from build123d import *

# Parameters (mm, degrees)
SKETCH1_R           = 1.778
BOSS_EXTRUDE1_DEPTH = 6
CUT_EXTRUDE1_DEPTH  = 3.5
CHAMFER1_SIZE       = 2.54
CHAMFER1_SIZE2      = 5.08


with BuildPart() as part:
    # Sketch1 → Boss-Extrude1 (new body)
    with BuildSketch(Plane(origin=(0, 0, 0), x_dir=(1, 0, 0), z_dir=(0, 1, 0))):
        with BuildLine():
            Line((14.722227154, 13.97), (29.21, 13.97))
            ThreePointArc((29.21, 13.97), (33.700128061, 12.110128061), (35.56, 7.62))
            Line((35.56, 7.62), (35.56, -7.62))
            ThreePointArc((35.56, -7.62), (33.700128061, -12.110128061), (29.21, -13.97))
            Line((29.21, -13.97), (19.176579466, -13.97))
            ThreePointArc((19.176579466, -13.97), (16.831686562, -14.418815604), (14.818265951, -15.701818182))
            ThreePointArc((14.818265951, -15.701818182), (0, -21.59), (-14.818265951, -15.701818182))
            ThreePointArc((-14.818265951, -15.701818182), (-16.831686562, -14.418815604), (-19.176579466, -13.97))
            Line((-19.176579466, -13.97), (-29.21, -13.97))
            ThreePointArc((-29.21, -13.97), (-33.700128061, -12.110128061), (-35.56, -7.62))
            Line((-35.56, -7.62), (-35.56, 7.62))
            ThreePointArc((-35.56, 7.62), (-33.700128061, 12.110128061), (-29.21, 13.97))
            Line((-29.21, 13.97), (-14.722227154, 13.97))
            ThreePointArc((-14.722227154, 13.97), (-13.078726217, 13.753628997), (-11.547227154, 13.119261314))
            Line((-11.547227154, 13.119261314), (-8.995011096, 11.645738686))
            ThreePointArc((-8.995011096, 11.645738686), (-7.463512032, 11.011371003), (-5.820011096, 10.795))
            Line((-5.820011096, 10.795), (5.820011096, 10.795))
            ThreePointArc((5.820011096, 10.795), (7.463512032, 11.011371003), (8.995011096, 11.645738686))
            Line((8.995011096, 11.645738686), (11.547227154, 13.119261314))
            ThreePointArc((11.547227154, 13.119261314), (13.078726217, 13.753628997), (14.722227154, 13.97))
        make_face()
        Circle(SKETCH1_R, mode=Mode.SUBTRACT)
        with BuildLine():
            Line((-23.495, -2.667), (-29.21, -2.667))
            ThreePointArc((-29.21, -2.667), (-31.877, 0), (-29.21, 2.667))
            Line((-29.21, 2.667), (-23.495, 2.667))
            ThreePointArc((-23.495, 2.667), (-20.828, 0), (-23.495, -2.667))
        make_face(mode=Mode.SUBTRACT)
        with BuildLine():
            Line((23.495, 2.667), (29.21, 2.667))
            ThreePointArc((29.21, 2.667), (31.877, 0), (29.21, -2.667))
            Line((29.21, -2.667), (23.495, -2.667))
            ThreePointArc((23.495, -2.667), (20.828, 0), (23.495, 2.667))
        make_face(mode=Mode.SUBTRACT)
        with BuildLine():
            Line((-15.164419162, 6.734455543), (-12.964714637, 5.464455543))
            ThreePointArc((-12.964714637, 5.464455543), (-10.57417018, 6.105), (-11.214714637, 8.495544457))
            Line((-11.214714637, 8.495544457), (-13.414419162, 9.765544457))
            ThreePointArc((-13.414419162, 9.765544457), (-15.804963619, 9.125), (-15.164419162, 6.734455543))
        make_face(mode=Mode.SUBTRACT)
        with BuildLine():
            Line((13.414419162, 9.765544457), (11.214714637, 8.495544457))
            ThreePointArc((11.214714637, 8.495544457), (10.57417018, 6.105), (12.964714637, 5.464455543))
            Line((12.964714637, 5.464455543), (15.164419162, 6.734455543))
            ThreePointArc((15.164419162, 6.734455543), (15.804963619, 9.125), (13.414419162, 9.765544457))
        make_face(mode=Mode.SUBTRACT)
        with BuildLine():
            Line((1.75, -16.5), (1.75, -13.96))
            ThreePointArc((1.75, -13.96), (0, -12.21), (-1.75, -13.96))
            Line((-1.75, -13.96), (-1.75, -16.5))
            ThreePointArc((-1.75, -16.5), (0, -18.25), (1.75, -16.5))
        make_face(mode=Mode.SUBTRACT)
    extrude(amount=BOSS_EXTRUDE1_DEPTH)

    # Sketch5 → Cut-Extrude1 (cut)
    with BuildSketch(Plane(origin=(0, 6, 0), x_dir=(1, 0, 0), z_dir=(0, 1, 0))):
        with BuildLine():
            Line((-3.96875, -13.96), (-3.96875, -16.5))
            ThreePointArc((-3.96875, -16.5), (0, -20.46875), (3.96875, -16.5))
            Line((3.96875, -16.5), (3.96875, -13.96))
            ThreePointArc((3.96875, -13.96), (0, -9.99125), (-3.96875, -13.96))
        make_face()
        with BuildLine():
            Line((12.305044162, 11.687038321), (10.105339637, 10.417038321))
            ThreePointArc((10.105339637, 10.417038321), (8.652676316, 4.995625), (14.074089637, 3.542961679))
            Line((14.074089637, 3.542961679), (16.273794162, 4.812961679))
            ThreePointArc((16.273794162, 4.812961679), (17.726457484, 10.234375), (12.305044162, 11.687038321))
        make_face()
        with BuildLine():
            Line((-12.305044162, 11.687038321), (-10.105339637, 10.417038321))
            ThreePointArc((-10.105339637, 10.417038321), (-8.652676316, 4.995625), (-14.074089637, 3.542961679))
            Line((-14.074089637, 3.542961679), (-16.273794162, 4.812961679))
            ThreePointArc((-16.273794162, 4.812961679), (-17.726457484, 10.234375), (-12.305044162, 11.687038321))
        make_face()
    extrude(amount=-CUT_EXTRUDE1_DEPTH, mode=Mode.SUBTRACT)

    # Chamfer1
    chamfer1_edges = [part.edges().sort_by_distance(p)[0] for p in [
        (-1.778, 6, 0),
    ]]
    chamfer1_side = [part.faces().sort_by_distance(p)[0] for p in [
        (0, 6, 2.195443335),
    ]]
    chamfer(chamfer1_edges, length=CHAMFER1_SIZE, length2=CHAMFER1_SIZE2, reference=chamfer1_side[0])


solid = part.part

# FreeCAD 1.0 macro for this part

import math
import FreeCAD as App
import Part
import Sketcher
from FreeCAD import Vector
Q = App.Units.Quantity


def edges_at(feature, points):
    """Names of the edges that pass closest to the given points."""
    edges = feature.Shape.Edges
    near = lambda p: min(range(len(edges)), key=lambda i: edges[i].distToShape(Part.Vertex(*p))[0])
    return sorted({f"Edge{near(p) + 1}" for p in points})

doc = App.newDocument("Part")
body = doc.addObject("PartDesign::Body", "Body")

# Sketch on XZ plane
sketch1 = doc.addObject("Sketcher::SketchObject", "Sketch")
body.addObject(sketch1)
sketch1.AttachmentSupport = (doc.XZ_Plane, [""])
sketch1.MapMode = "FlatFace"
sketch1.addGeometry(Part.LineSegment(Vector(29.21, -13.97, 0), Vector(14.722227, -13.97, 0)), False)
sketch1.addGeometry(Part.ArcOfCircle(Part.Circle(Vector(14.722227, -7.62, 0), Vector(0, 0, 1), 6.35), math.radians(-120), math.radians(-90)), False)
sketch1.addGeometry(Part.LineSegment(Vector(11.547227, -13.119261, 0), Vector(8.995011, -11.645739, 0)), False)
sketch1.addGeometry(Part.ArcOfCircle(Part.Circle(Vector(5.820011, -17.145, 0), Vector(0, 0, 1), 6.35), math.radians(60), math.radians(90)), False)
sketch1.addGeometry(Part.LineSegment(Vector(5.820011, -10.795, 0), Vector(-5.820011, -10.795, 0)), False)
sketch1.addGeometry(Part.ArcOfCircle(Part.Circle(Vector(-5.820011, -17.145, 0), Vector(0, 0, 1), 6.35), math.radians(90), math.radians(120)), False)
sketch1.addGeometry(Part.LineSegment(Vector(-8.995011, -11.645739, 0), Vector(-11.547227, -13.119261, 0)), False)
sketch1.addGeometry(Part.ArcOfCircle(Part.Circle(Vector(-14.722227, -7.62, 0), Vector(0, 0, 1), 6.35), math.radians(-90), math.radians(-60)), False)
sketch1.addGeometry(Part.LineSegment(Vector(-14.722227, -13.97, 0), Vector(-29.21, -13.97, 0)), False)
sketch1.addGeometry(Part.ArcOfCircle(Part.Circle(Vector(-29.21, -7.62, 0), Vector(0, 0, 1), 6.35), math.radians(180), math.radians(270)), False)
sketch1.addGeometry(Part.LineSegment(Vector(-35.56, -7.62, 0), Vector(-35.56, 7.62, 0)), False)
sketch1.addGeometry(Part.ArcOfCircle(Part.Circle(Vector(-29.21, 7.62, 0), Vector(0, 0, 1), 6.35), math.radians(90), math.radians(180)), False)
sketch1.addGeometry(Part.LineSegment(Vector(-29.21, 13.97, 0), Vector(-19.176579, 13.97, 0)), False)
sketch1.addGeometry(Part.ArcOfCircle(Part.Circle(Vector(-19.176579, 20.32, 0), Vector(0, 0, 1), 6.35), math.radians(-90), math.radians(-46.658242)), False)
sketch1.addGeometry(Part.ArcOfCircle(Part.Circle(Vector(0, 0, 0), Vector(0, 0, 1), 21.59), math.radians(46.658242), math.radians(133.341758)), False)
sketch1.addGeometry(Part.ArcOfCircle(Part.Circle(Vector(19.176579, 20.32, 0), Vector(0, 0, 1), 6.35), math.radians(-133.341758), math.radians(-90)), False)
sketch1.addGeometry(Part.LineSegment(Vector(19.176579, 13.97, 0), Vector(29.21, 13.97, 0)), False)
sketch1.addGeometry(Part.ArcOfCircle(Part.Circle(Vector(29.21, 7.62, 0), Vector(0, 0, 1), 6.35), math.radians(0), math.radians(90)), False)
sketch1.addGeometry(Part.LineSegment(Vector(35.56, 7.62, 0), Vector(35.56, -7.62, 0)), False)
sketch1.addGeometry(Part.ArcOfCircle(Part.Circle(Vector(29.21, -7.62, 0), Vector(0, 0, 1), 6.35), math.radians(-90), math.radians(0)), False)
sketch1.addGeometry(Part.ArcOfCircle(Part.Circle(Vector(0, 16.5, 0), Vector(0, 0, 1), 1.75), math.radians(0), math.radians(180)), False)
sketch1.addGeometry(Part.LineSegment(Vector(-1.75, 16.5, 0), Vector(-1.75, 13.96, 0)), False)
sketch1.addGeometry(Part.ArcOfCircle(Part.Circle(Vector(0, 13.96, 0), Vector(0, 0, 1), 1.75), math.radians(180), math.radians(360)), False)
sketch1.addGeometry(Part.LineSegment(Vector(1.75, 13.96, 0), Vector(1.75, 16.5, 0)), False)
sketch1.addGeometry(Part.LineSegment(Vector(23.495, -2.667, 0), Vector(29.21, -2.667, 0)), False)
sketch1.addGeometry(Part.ArcOfCircle(Part.Circle(Vector(29.21, 0, 0), Vector(0, 0, 1), 2.667), math.radians(-90), math.radians(90)), False)
sketch1.addGeometry(Part.LineSegment(Vector(29.21, 2.667, 0), Vector(23.495, 2.667, 0)), False)
sketch1.addGeometry(Part.ArcOfCircle(Part.Circle(Vector(23.495, 0, 0), Vector(0, 0, 1), 2.667), math.radians(90), math.radians(270)), False)
sketch1.addGeometry(Part.ArcOfCircle(Part.Circle(Vector(14.289419, -8.25, 0), Vector(0, 0, 1), 1.75), math.radians(-120), math.radians(60)), False)
sketch1.addGeometry(Part.LineSegment(Vector(15.164419, -6.734456, 0), Vector(12.964715, -5.464456, 0)), False)
sketch1.addGeometry(Part.ArcOfCircle(Part.Circle(Vector(12.089715, -6.98, 0), Vector(0, 0, 1), 1.75), math.radians(60), math.radians(240)), False)
sketch1.addGeometry(Part.LineSegment(Vector(11.214715, -8.495544, 0), Vector(13.414419, -9.765544, 0)), False)
sketch1.addGeometry(Part.Circle(Vector(0, 0, 0), Vector(0, 0, 1), 1.778), False)
sketch1.addGeometry(Part.LineSegment(Vector(-23.495, 2.667, 0), Vector(-29.21, 2.667, 0)), False)
sketch1.addGeometry(Part.ArcOfCircle(Part.Circle(Vector(-29.21, 0, 0), Vector(0, 0, 1), 2.667), math.radians(90), math.radians(270)), False)
sketch1.addGeometry(Part.LineSegment(Vector(-29.21, -2.667, 0), Vector(-23.495, -2.667, 0)), False)
sketch1.addGeometry(Part.ArcOfCircle(Part.Circle(Vector(-23.495, 0, 0), Vector(0, 0, 1), 2.667), math.radians(-90), math.radians(90)), False)
sketch1.addGeometry(Part.ArcOfCircle(Part.Circle(Vector(-14.289419, -8.25, 0), Vector(0, 0, 1), 1.75), math.radians(120), math.radians(300)), False)
sketch1.addGeometry(Part.LineSegment(Vector(-13.414419, -9.765544, 0), Vector(-11.214715, -8.495544, 0)), False)
sketch1.addGeometry(Part.ArcOfCircle(Part.Circle(Vector(-12.089715, -6.98, 0), Vector(0, 0, 1), 1.75), math.radians(-60), math.radians(120)), False)
sketch1.addGeometry(Part.LineSegment(Vector(-12.964715, -5.464456, 0), Vector(-15.164419, -6.734456, 0)), False)
sketch1.addConstraint(Sketcher.Constraint("Tangent", 0, 2, 1, 2))
sketch1.addConstraint(Sketcher.Constraint("Tangent", 1, 1, 2, 1))
sketch1.addConstraint(Sketcher.Constraint("Tangent", 2, 2, 3, 1))
sketch1.addConstraint(Sketcher.Constraint("Tangent", 3, 2, 4, 1))
sketch1.addConstraint(Sketcher.Constraint("Tangent", 4, 2, 5, 1))
sketch1.addConstraint(Sketcher.Constraint("Tangent", 5, 2, 6, 1))
sketch1.addConstraint(Sketcher.Constraint("Tangent", 6, 2, 7, 2))
sketch1.addConstraint(Sketcher.Constraint("Tangent", 7, 1, 8, 1))
sketch1.addConstraint(Sketcher.Constraint("Tangent", 8, 2, 9, 2))
sketch1.addConstraint(Sketcher.Constraint("Tangent", 9, 1, 10, 1))
sketch1.addConstraint(Sketcher.Constraint("Tangent", 10, 2, 11, 2))
sketch1.addConstraint(Sketcher.Constraint("Tangent", 11, 1, 12, 1))
sketch1.addConstraint(Sketcher.Constraint("Tangent", 12, 2, 13, 1))
sketch1.addConstraint(Sketcher.Constraint("Tangent", 13, 2, 14, 2))
sketch1.addConstraint(Sketcher.Constraint("Tangent", 14, 1, 15, 1))
sketch1.addConstraint(Sketcher.Constraint("Tangent", 15, 2, 16, 1))
sketch1.addConstraint(Sketcher.Constraint("Tangent", 16, 2, 17, 2))
sketch1.addConstraint(Sketcher.Constraint("Tangent", 17, 1, 18, 1))
sketch1.addConstraint(Sketcher.Constraint("Tangent", 18, 2, 19, 2))
sketch1.addConstraint(Sketcher.Constraint("Tangent", 19, 1, 0, 1))
sketch1.addConstraint(Sketcher.Constraint("Tangent", 20, 2, 21, 1))
sketch1.addConstraint(Sketcher.Constraint("Tangent", 21, 2, 22, 1))
sketch1.addConstraint(Sketcher.Constraint("Tangent", 22, 2, 23, 1))
sketch1.addConstraint(Sketcher.Constraint("Tangent", 23, 2, 20, 1))
sketch1.addConstraint(Sketcher.Constraint("Tangent", 24, 2, 25, 1))
sketch1.addConstraint(Sketcher.Constraint("Tangent", 25, 2, 26, 1))
sketch1.addConstraint(Sketcher.Constraint("Tangent", 26, 2, 27, 1))
sketch1.addConstraint(Sketcher.Constraint("Tangent", 27, 2, 24, 1))
sketch1.addConstraint(Sketcher.Constraint("Tangent", 28, 2, 29, 1))
sketch1.addConstraint(Sketcher.Constraint("Tangent", 29, 2, 30, 1))
sketch1.addConstraint(Sketcher.Constraint("Tangent", 30, 2, 31, 1))
sketch1.addConstraint(Sketcher.Constraint("Tangent", 31, 2, 28, 1))
sketch1.addConstraint(Sketcher.Constraint("Tangent", 33, 2, 34, 1))
sketch1.addConstraint(Sketcher.Constraint("Tangent", 34, 2, 35, 1))
sketch1.addConstraint(Sketcher.Constraint("Tangent", 35, 2, 36, 1))
sketch1.addConstraint(Sketcher.Constraint("Tangent", 36, 2, 33, 1))
sketch1.addConstraint(Sketcher.Constraint("Tangent", 37, 2, 38, 1))
sketch1.addConstraint(Sketcher.Constraint("Tangent", 38, 2, 39, 1))
sketch1.addConstraint(Sketcher.Constraint("Tangent", 39, 2, 40, 1))
sketch1.addConstraint(Sketcher.Constraint("Tangent", 40, 2, 37, 1))
sketch1.addConstraint(Sketcher.Constraint("Horizontal", 0))
sketch1.addConstraint(Sketcher.Constraint("Horizontal", 4))
sketch1.addConstraint(Sketcher.Constraint("Horizontal", 8))
sketch1.addConstraint(Sketcher.Constraint("Vertical", 10))
sketch1.addConstraint(Sketcher.Constraint("Horizontal", 12))
sketch1.addConstraint(Sketcher.Constraint("Horizontal", 16))
sketch1.addConstraint(Sketcher.Constraint("Vertical", 18))
sketch1.addConstraint(Sketcher.Constraint("Vertical", 21))
sketch1.addConstraint(Sketcher.Constraint("Vertical", 23))
sketch1.addConstraint(Sketcher.Constraint("Horizontal", 24))
sketch1.addConstraint(Sketcher.Constraint("Horizontal", 26))
sketch1.addConstraint(Sketcher.Constraint("Horizontal", 33))
sketch1.addConstraint(Sketcher.Constraint("Horizontal", 35))
sketch1.addConstraint(Sketcher.Constraint("Coincident", 14, 3, -1, 1))
sketch1.addConstraint(Sketcher.Constraint("Coincident", 32, 3, -1, 1))
sketch1.addConstraint(Sketcher.Constraint("Equal", 1, 3))
sketch1.addConstraint(Sketcher.Constraint("Equal", 3, 5))
sketch1.addConstraint(Sketcher.Constraint("Equal", 5, 7))
sketch1.addConstraint(Sketcher.Constraint("Equal", 7, 9))
sketch1.addConstraint(Sketcher.Constraint("Equal", 9, 11))
sketch1.addConstraint(Sketcher.Constraint("Equal", 11, 13))
sketch1.addConstraint(Sketcher.Constraint("Equal", 13, 15))
sketch1.addConstraint(Sketcher.Constraint("Equal", 15, 17))
sketch1.addConstraint(Sketcher.Constraint("Equal", 17, 19))
sketch1.addConstraint(Sketcher.Constraint("Equal", 22, 28))
sketch1.addConstraint(Sketcher.Constraint("Equal", 28, 30))
sketch1.addConstraint(Sketcher.Constraint("Equal", 27, 34))
sketch1.addConstraint(Sketcher.Constraint("Equal", 30, 37))
sketch1.addConstraint(Sketcher.Constraint("Equal", 37, 39))
sketch1.addConstraint(Sketcher.Constraint("Symmetric", 9, 3, 17, 3, -1, 1))
sketch1.addConstraint(Sketcher.Constraint("Symmetric", 25, 3, 34, 3, -1, 1))
sketch1.addConstraint(Sketcher.Constraint("Symmetric", 1, 3, 7, 3, -2))
sketch1.addConstraint(Sketcher.Constraint("Symmetric", 27, 3, 36, 3, -2))
sketch1.addConstraint(Sketcher.Constraint("Symmetric", 28, 3, 37, 3, -2))
sketch1.addConstraint(Sketcher.Constraint("Symmetric", 30, 3, 39, 3, -2))
sketch1.addConstraint(Sketcher.Constraint("PointOnObject", 20, 3, -2))
sketch1.addConstraint(Sketcher.Constraint("Parallel", 2, 29))
sketch1.addConstraint(Sketcher.Constraint("Parallel", 6, 38))
sketch1.addConstraint(Sketcher.Constraint("Horizontal", 13, 3, 15, 3))
sketch1.addConstraint(Sketcher.Constraint("Vertical", 19, 3, 25, 3))
sketch1.addConstraint(Sketcher.Constraint("Diameter", 32, Q("0.14 in")))
sketch1.addConstraint(Sketcher.Constraint("Radius", 1, Q("0.25 in")))
sketch1.addConstraint(Sketcher.Constraint("Radius", 14, Q("0.85 in")))
sketch1.addConstraint(Sketcher.Constraint("DistanceY", 10, 1, 10, 2, Q("0.6 in")))
sketch1.addConstraint(Sketcher.Constraint("DistanceY", 21, 2, 21, 1, Q("0.1 in")))
sketch1.addConstraint(Sketcher.Constraint("Angle", 2, Q("150 deg")))
sketch1.addConstraint(Sketcher.Constraint("Radius", 25, Q("0.105 in")))
sketch1.addConstraint(Sketcher.Constraint("Distance", 29, Q("0.1 in")))
sketch1.addConstraint(Sketcher.Constraint("DistanceX", 9, 1, -1, 1, Q("1.4 in")))
sketch1.addConstraint(Sketcher.Constraint("DistanceX", 24, 1, 24, 2, Q("0.225 in")))
sketch1.addConstraint(Sketcher.Constraint("Radius", 20, 1.75))
sketch1.addConstraint(Sketcher.Constraint("DistanceY", 3, 3, -1, 1, Q("0.675 in")))
sketch1.addConstraint(Sketcher.Constraint("DistanceY", -1, 1, 20, 3, 16.5))
sketch1.addConstraint(Sketcher.Constraint("DistanceY", 28, 3, -1, 1, 8.25))
sketch1.addConstraint(Sketcher.Constraint("DistanceX", 0, 2, 0, 1, 14.487773))
sketch1.addConstraint(Sketcher.Constraint("DistanceX", -1, 1, 28, 3, 14.289419))
pad1 = doc.addObject("PartDesign::Pad", "Pad")
body.addObject(pad1)
pad1.Profile = sketch1
pad1.Length = 6
pad1.Reversed = True

# Sketch on XZ plane
sketch2 = doc.addObject("Sketcher::SketchObject", "Sketch001")
body.addObject(sketch2)
sketch2.AttachmentSupport = (doc.XZ_Plane, [""])
sketch2.MapMode = "FlatFace"
sketch2.AttachmentOffset = App.Placement(Vector(0, 0, -6), App.Rotation())
sketch2.addGeometry(Part.LineSegment(Vector(-3.96875, 13.96, 0), Vector(-3.96875, 16.5, 0)), False)
sketch2.addGeometry(Part.ArcOfCircle(Part.Circle(Vector(0, 16.5, 0), Vector(0, 0, 1), 3.96875), math.radians(0), math.radians(180)), False)
sketch2.addGeometry(Part.LineSegment(Vector(3.96875, 16.5, 0), Vector(3.96875, 13.96, 0)), False)
sketch2.addGeometry(Part.ArcOfCircle(Part.Circle(Vector(0, 13.96, 0), Vector(0, 0, 1), 3.96875), math.radians(180), math.radians(360)), False)
sketch2.addGeometry(Part.LineSegment(Vector(12.305044, -11.687038, 0), Vector(10.10534, -10.417038, 0)), False)
sketch2.addGeometry(Part.ArcOfCircle(Part.Circle(Vector(12.089715, -6.98, 0), Vector(0, 0, 1), 3.96875), math.radians(60), math.radians(240)), False)
sketch2.addGeometry(Part.LineSegment(Vector(14.07409, -3.542962, 0), Vector(16.273794, -4.812962, 0)), False)
sketch2.addGeometry(Part.ArcOfCircle(Part.Circle(Vector(14.289419, -8.25, 0), Vector(0, 0, 1), 3.96875), math.radians(-120), math.radians(60)), False)
sketch2.addGeometry(Part.LineSegment(Vector(-10.10534, -10.417038, 0), Vector(-12.305044, -11.687038, 0)), False)
sketch2.addGeometry(Part.ArcOfCircle(Part.Circle(Vector(-14.289419, -8.25, 0), Vector(0, 0, 1), 3.96875), math.radians(120), math.radians(300)), False)
sketch2.addGeometry(Part.LineSegment(Vector(-16.273794, -4.812962, 0), Vector(-14.07409, -3.542962, 0)), False)
sketch2.addGeometry(Part.ArcOfCircle(Part.Circle(Vector(-12.089715, -6.98, 0), Vector(0, 0, 1), 3.96875), math.radians(-60), math.radians(120)), False)
sketch2.addConstraint(Sketcher.Constraint("Tangent", 0, 2, 1, 2))
sketch2.addConstraint(Sketcher.Constraint("Tangent", 1, 1, 2, 1))
sketch2.addConstraint(Sketcher.Constraint("Tangent", 2, 2, 3, 2))
sketch2.addConstraint(Sketcher.Constraint("Tangent", 3, 1, 0, 1))
sketch2.addConstraint(Sketcher.Constraint("Tangent", 4, 2, 5, 2))
sketch2.addConstraint(Sketcher.Constraint("Tangent", 5, 1, 6, 1))
sketch2.addConstraint(Sketcher.Constraint("Tangent", 6, 2, 7, 2))
sketch2.addConstraint(Sketcher.Constraint("Tangent", 7, 1, 4, 1))
sketch2.addConstraint(Sketcher.Constraint("Tangent", 8, 2, 9, 2))
sketch2.addConstraint(Sketcher.Constraint("Tangent", 9, 1, 10, 1))
sketch2.addConstraint(Sketcher.Constraint("Tangent", 10, 2, 11, 2))
sketch2.addConstraint(Sketcher.Constraint("Tangent", 11, 1, 8, 1))
sketch2.addConstraint(Sketcher.Constraint("Vertical", 0))
sketch2.addConstraint(Sketcher.Constraint("Vertical", 2))
sketch2.addConstraint(Sketcher.Constraint("Equal", 3, 5))
sketch2.addConstraint(Sketcher.Constraint("Equal", 5, 7))
sketch2.addConstraint(Sketcher.Constraint("Equal", 7, 9))
sketch2.addConstraint(Sketcher.Constraint("Equal", 9, 11))
sketch2.addConstraint(Sketcher.Constraint("Symmetric", 7, 3, 9, 3, -2))
sketch2.addConstraint(Sketcher.Constraint("Symmetric", 5, 3, 11, 3, -2))
sketch2.addConstraint(Sketcher.Constraint("PointOnObject", 1, 3, -2))
sketch2.addConstraint(Sketcher.Constraint("DistanceY", 0, 1, 0, 2, Q("0.1 in")))
sketch2.addConstraint(Sketcher.Constraint("Angle", 4, Q("150 deg")))
sketch2.addConstraint(Sketcher.Constraint("Radius", 1, Q("0.15625 in")))
sketch2.addConstraint(Sketcher.Constraint("Distance", 4, Q("0.1 in")))
sketch2.addConstraint(Sketcher.Constraint("DistanceY", -1, 1, 1, 3, 16.5))
sketch2.addConstraint(Sketcher.Constraint("DistanceY", 5, 3, -1, 1, 6.98))
sketch2.addConstraint(Sketcher.Constraint("DistanceX", -1, 1, 7, 3, 14.289419))
pocket1 = doc.addObject("PartDesign::Pocket", "Pocket")
body.addObject(pocket1)
pocket1.Profile = sketch2
pocket1.Length = 3.5
pocket1.Reversed = True
doc.recompute()

chamfer = doc.addObject("PartDesign::Chamfer", "Chamfer")
body.addObject(chamfer)
chamfer.Base = (pocket1, edges_at(pocket1, [(-1.778, 6, 0)]))
chamfer.ChamferType = "Two distances"
chamfer.Size = Q("0.1 in")
chamfer.Size2 = Q("0.2 in")

doc.recompute()
